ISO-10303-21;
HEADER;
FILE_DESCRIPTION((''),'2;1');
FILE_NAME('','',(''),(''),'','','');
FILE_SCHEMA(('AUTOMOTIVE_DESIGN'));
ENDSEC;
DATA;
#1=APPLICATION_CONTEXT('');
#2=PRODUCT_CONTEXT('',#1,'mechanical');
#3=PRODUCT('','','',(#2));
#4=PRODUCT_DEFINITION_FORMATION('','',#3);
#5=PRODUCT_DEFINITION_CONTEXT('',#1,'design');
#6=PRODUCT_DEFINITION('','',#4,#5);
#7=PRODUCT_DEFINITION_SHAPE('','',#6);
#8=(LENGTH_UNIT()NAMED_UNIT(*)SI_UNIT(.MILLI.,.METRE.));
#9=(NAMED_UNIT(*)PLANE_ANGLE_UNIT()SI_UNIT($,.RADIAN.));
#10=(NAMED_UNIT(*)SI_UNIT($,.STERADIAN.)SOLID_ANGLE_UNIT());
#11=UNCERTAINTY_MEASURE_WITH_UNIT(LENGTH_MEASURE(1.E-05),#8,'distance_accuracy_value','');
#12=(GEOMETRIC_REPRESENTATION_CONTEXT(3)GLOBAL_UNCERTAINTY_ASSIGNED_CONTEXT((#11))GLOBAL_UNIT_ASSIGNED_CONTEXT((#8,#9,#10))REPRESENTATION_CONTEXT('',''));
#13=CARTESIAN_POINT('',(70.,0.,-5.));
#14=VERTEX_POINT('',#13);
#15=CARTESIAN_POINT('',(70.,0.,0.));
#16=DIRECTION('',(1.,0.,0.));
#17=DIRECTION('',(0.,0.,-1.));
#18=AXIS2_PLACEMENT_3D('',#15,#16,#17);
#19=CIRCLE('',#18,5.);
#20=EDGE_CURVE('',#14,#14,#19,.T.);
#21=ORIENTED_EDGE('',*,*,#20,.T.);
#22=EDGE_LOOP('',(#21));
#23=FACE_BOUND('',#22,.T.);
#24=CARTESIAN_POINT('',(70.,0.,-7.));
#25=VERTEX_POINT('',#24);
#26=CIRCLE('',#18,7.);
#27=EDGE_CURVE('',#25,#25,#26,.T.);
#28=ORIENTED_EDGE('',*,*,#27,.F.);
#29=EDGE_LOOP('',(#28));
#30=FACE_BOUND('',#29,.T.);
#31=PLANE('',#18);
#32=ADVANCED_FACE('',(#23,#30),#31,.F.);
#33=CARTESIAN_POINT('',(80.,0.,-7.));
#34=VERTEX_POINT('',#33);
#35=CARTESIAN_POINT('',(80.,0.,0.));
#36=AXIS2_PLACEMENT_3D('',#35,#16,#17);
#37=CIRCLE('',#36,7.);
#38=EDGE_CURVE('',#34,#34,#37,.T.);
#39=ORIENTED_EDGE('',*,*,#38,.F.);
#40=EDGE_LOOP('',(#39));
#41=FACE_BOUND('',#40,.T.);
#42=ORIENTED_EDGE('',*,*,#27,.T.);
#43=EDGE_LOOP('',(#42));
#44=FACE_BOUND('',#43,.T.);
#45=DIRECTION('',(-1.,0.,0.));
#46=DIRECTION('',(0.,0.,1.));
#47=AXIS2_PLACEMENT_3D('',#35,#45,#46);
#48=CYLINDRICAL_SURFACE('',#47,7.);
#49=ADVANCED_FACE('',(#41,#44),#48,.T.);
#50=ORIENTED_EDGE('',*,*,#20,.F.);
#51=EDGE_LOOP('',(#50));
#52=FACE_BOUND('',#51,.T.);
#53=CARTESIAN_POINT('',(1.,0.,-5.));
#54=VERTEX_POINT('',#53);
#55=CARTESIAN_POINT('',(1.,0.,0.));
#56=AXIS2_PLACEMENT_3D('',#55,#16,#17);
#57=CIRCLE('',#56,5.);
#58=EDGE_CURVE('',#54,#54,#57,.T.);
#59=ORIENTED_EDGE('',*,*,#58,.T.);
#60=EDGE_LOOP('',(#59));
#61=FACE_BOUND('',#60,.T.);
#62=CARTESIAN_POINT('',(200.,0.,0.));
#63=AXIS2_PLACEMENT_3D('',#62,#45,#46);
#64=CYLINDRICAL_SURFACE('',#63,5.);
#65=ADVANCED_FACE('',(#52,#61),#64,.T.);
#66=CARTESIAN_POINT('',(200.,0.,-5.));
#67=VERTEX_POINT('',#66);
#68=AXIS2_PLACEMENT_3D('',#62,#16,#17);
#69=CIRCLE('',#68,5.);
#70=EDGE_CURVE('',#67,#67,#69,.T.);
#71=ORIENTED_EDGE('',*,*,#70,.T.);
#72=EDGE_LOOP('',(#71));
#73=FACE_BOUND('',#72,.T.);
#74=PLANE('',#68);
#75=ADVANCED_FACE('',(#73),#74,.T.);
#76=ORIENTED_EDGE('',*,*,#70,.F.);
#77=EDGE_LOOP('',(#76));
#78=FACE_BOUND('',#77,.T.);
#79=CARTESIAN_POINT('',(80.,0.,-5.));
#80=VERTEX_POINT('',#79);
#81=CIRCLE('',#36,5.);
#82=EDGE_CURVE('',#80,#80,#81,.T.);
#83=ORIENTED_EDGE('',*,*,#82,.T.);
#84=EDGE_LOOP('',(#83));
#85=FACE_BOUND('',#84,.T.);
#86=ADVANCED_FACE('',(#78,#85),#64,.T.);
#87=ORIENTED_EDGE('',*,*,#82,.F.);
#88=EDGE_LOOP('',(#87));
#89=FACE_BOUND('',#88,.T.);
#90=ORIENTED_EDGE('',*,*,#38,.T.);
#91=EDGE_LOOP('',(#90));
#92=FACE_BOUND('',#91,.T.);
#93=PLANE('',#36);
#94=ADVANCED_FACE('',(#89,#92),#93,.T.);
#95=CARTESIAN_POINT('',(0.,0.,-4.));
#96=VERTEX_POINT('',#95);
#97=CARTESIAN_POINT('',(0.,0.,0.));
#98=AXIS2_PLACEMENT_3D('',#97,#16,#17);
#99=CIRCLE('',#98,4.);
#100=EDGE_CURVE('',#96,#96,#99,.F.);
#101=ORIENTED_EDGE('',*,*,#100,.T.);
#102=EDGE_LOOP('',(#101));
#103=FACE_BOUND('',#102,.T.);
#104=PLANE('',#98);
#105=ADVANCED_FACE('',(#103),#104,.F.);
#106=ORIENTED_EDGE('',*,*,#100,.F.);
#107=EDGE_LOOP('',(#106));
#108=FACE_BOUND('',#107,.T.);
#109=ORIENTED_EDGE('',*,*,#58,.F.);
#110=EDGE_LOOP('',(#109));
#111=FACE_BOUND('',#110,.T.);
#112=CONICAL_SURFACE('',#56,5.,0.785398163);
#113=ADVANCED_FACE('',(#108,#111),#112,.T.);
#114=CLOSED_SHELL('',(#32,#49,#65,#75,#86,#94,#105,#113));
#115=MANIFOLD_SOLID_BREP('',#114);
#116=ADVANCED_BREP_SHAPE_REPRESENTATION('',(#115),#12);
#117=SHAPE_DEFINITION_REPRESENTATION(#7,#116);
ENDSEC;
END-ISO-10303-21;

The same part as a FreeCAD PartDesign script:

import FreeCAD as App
import Part
import Sketcher


def edges_at(feature, points):
    """Names of the edges that pass closest to the given points."""
    edges = feature.Shape.Edges
    near = lambda p: min(range(len(edges)), key=lambda i: edges[i].distToShape(Part.Vertex(*p))[0])
    return sorted({f"Edge{near(p) + 1}" for p in points})

doc = App.newDocument("Part")
body = doc.addObject("PartDesign::Body", "Body")

# Sketch on YZ plane
sketch1 = body.newObject("Sketcher::SketchObject", "Sketch")
sketch1.AttachmentSupport = (doc.getObject("YZ_Plane"), [""])
sketch1.MapMode = "FlatFace"
sketch1.addGeometry(Part.Circle(App.Vector(0, 0, 0), App.Vector(0, 0, 1), 5), False)
sketch1.addConstraint([
    Sketcher.Constraint("Coincident", 0, 3, -1, 1),
    Sketcher.Constraint("Diameter", 0, 10.0),
])
pad1 = body.newObject("PartDesign::Pad", "Pad")
pad1.Profile = sketch1
pad1.Length = 200
doc.recompute()

chamfer = body.newObject("PartDesign::Chamfer", "Chamfer")
chamfer.Base = (pad1, edges_at(pad1, [(0, 0, 5)]))
chamfer.Size = 1

# Sketch on YZ plane
sketch2 = body.newObject("Sketcher::SketchObject", "Sketch001")
sketch2.AttachmentSupport = (doc.getObject("YZ_Plane"), [""])
sketch2.MapMode = "FlatFace"
sketch2.AttachmentOffset = App.Placement(App.Vector(0, 0, 70), App.Rotation())
sketch2.addGeometry(Part.Circle(App.Vector(0, 0, 0), App.Vector(0, 0, 1), 7), False)
sketch2.addConstraint([
    Sketcher.Constraint("Coincident", 0, 3, -1, 1),
    Sketcher.Constraint("Diameter", 0, 14.0),
])
pad2 = body.newObject("PartDesign::Pad", "Pad001")
pad2.Profile = sketch2
pad2.Length = 10

doc.recompute()
